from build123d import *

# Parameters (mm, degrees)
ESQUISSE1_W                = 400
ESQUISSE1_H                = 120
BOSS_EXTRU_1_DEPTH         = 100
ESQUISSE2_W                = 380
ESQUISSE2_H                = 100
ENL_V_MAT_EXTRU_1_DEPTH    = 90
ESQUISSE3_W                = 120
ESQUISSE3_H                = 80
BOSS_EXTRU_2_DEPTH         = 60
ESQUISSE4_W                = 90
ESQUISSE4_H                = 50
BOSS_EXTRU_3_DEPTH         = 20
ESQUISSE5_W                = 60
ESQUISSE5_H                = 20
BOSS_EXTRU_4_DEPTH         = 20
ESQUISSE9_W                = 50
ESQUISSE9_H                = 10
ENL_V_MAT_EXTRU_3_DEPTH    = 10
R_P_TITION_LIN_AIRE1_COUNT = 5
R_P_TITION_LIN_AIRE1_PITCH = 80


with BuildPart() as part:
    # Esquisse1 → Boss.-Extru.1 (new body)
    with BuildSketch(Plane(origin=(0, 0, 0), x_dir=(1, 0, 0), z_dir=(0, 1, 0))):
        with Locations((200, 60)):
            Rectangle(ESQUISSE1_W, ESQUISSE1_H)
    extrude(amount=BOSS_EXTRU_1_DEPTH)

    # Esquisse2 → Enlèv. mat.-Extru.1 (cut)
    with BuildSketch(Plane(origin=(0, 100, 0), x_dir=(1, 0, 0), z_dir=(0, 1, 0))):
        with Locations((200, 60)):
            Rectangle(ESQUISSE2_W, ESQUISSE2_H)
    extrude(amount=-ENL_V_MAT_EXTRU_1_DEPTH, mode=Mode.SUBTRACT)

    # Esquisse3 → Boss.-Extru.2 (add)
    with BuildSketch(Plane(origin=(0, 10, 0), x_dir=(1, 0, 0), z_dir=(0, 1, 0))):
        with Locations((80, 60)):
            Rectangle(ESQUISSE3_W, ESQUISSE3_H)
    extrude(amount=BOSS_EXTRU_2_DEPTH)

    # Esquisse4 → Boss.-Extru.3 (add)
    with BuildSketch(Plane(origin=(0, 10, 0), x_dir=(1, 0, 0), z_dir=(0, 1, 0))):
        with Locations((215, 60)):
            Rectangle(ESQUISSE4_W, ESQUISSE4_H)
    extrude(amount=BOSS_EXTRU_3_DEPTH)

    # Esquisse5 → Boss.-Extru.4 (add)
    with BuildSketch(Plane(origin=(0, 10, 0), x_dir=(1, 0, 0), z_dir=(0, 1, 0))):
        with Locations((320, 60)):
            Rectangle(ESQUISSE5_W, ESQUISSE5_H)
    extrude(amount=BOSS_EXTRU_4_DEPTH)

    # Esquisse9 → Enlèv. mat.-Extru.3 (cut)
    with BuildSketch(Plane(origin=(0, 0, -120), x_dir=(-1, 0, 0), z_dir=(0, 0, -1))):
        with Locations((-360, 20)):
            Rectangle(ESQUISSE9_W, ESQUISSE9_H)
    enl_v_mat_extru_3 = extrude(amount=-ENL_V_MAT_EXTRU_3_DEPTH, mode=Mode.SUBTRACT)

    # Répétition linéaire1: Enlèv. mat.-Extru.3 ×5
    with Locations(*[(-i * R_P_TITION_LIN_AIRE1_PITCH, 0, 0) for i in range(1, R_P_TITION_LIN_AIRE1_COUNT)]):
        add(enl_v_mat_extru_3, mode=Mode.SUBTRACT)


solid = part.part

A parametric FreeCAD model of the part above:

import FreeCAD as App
import Part
import Sketcher

V = App.Vector


def add_polygon(sketch, points):
    """Adds a closed chain of lines whose ends are joined by coincident constraints."""
    first, n = sketch.GeometryCount, len(points)
    for a, b in zip(points, points[1:] + points[:1]):
        sketch.addGeometry(Part.LineSegment(App.Vector(*a, 0), App.Vector(*b, 0)), False)
    for i in range(n):
        sketch.addConstraint(Sketcher.Constraint("Coincident", first + i, 2, first + (i + 1) % n, 1))

doc = App.newDocument("Part")
params = doc.addObject("Spreadsheet::Sheet", "Params")
for row, (alias, value) in enumerate([
    ("sketch1_width", "400 mm"),
    ("sketch1_height", "120 mm"),
    ("pad1_length", "100 mm"),
    ("sketch2_width", "380 mm"),
    ("sketch2_height", "100 mm"),
    ("pocket1_length", "90 mm"),
    ("sketch3_width", "120 mm"),
    ("sketch3_height", "80 mm"),
    ("pad2_length", "60 mm"),
    ("sketch4_width", "90 mm"),
    ("sketch4_height", "50 mm"),
    ("pad3_length", "20 mm"),
    ("sketch5_width", "60 mm"),
    ("sketch5_height", "20 mm"),
    ("pad4_length", "20 mm"),
    ("sketch6_width", "50 mm"),
    ("sketch6_height", "10 mm"),
    ("pocket2_length", "10 mm"),
    ("linearpattern_pitch", "80 mm"),
], start=1):
    params.set(f"A{row}", alias)
    params.set(f"B{row}", "=" + value)
    params.setAlias(f"B{row}", alias)

body = doc.addObject("PartDesign::Body", "Body")

sketch1 = body.newObject("Sketcher::SketchObject", "Sketch")
sketch1.AttachmentSupport = (doc.getObject("XZ_Plane"), [""])
sketch1.MapMode = "FlatFace"
add_polygon(sketch1, [(0, -120), (0, 0), (400, 0), (400, -120)])
sketch1.addConstraint([
    Sketcher.Constraint("Vertical", 0),
    Sketcher.Constraint("Horizontal", 1),
    Sketcher.Constraint("Vertical", 2),
    Sketcher.Constraint("Horizontal", 3),
    Sketcher.Constraint("Coincident", 0, 2, -1, 1),
    Sketcher.Constraint("DistanceX", 1, 1, 1, 2, 400.0),
    Sketcher.Constraint("DistanceY", 0, 1, 0, 2, 120.0),
])
sketch1.setExpression("Constraints[9]", "Params.sketch1_width")
sketch1.setExpression("Constraints[10]", "Params.sketch1_height")
pad1 = body.newObject("PartDesign::Pad", "Pad")
pad1.Profile = sketch1
pad1.setExpression("Length", "Params.pad1_length")
pad1.Reversed = True

sketch2 = body.newObject("Sketcher::SketchObject", "Sketch001")
sketch2.AttachmentSupport = (doc.getObject("XZ_Plane"), [""])
sketch2.MapMode = "FlatFace"
sketch2.AttachmentOffset = App.Placement(V(0, 0, -100), App.Rotation())
add_polygon(sketch2, [(10, -110), (10, -10), (390, -10), (390, -110)])
sketch2.addConstraint([
    Sketcher.Constraint("Vertical", 0),
    Sketcher.Constraint("Horizontal", 1),
    Sketcher.Constraint("Vertical", 2),
    Sketcher.Constraint("Horizontal", 3),
    Sketcher.Constraint("DistanceX", 1, 1, 1, 2, 380.0),
    Sketcher.Constraint("DistanceY", 0, 1, 0, 2, 100.0),
    Sketcher.Constraint("DistanceX", -1, 1, 0, 2, 10.0),
    Sketcher.Constraint("DistanceY", 0, 2, -1, 1, 10.0),
])
sketch2.setExpression("Constraints[8]", "Params.sketch2_width")
sketch2.setExpression("Constraints[9]", "Params.sketch2_height")
pocket1 = body.newObject("PartDesign::Pocket", "Pocket")
pocket1.Profile = sketch2
pocket1.setExpression("Length", "Params.pocket1_length")
pocket1.Reversed = True

sketch3 = body.newObject("Sketcher::SketchObject", "Sketch002")
sketch3.AttachmentSupport = (doc.getObject("XZ_Plane"), [""])
sketch3.MapMode = "FlatFace"
sketch3.AttachmentOffset = App.Placement(V(0, 0, -10), App.Rotation())
add_polygon(sketch3, [(20, -100), (20, -20), (140, -20), (140, -100)])
sketch3.addConstraint([
    Sketcher.Constraint("Vertical", 0),
    Sketcher.Constraint("Horizontal", 1),
    Sketcher.Constraint("Vertical", 2),
    Sketcher.Constraint("Horizontal", 3),
    Sketcher.Constraint("DistanceX", 1, 1, 1, 2, 120.0),
    Sketcher.Constraint("DistanceY", 0, 1, 0, 2, 80.0),
    Sketcher.Constraint("DistanceX", -1, 1, 0, 2, 20.0),
    Sketcher.Constraint("DistanceY", 0, 2, -1, 1, 20.0),
])
sketch3.setExpression("Constraints[8]", "Params.sketch3_width")
sketch3.setExpression("Constraints[9]", "Params.sketch3_height")
pad2 = body.newObject("PartDesign::Pad", "Pad001")
pad2.Profile = sketch3
pad2.setExpression("Length", "Params.pad2_length")
pad2.Reversed = True

sketch4 = body.newObject("Sketcher::SketchObject", "Sketch003")
sketch4.AttachmentSupport = (doc.getObject("XZ_Plane"), [""])
sketch4.MapMode = "FlatFace"
sketch4.AttachmentOffset = App.Placement(V(0, 0, -10), App.Rotation())
add_polygon(sketch4, [(170, -85), (170, -35), (260, -35), (260, -85)])
sketch4.addConstraint([
    Sketcher.Constraint("Vertical", 0),
    Sketcher.Constraint("Horizontal", 1),
    Sketcher.Constraint("Vertical", 2),
    Sketcher.Constraint("Horizontal", 3),
    Sketcher.Constraint("DistanceX", 1, 1, 1, 2, 90.0),
    Sketcher.Constraint("DistanceY", 0, 1, 0, 2, 50.0),
    Sketcher.Constraint("DistanceX", -1, 1, 0, 2, 170.0),
    Sketcher.Constraint("DistanceY", 0, 2, -1, 1, 35.0),
])
sketch4.setExpression("Constraints[8]", "Params.sketch4_width")
sketch4.setExpression("Constraints[9]", "Params.sketch4_height")
pad3 = body.newObject("PartDesign::Pad", "Pad002")
pad3.Profile = sketch4
pad3.setExpression("Length", "Params.pad3_length")
pad3.Reversed = True

sketch5 = body.newObject("Sketcher::SketchObject", "Sketch004")
sketch5.AttachmentSupport = (doc.getObject("XZ_Plane"), [""])
sketch5.MapMode = "FlatFace"
sketch5.AttachmentOffset = App.Placement(V(0, 0, -10), App.Rotation())
add_polygon(sketch5, [(290, -70), (290, -50), (350, -50), (350, -70)])
sketch5.addConstraint([
    Sketcher.Constraint("Vertical", 0),
    Sketcher.Constraint("Horizontal", 1),
    Sketcher.Constraint("Vertical", 2),
    Sketcher.Constraint("Horizontal", 3),
    Sketcher.Constraint("DistanceX", 1, 1, 1, 2, 60.0),
    Sketcher.Constraint("DistanceY", 0, 1, 0, 2, 20.0),
    Sketcher.Constraint("DistanceX", -1, 1, 0, 2, 290.0),
    Sketcher.Constraint("DistanceY", 0, 2, -1, 1, 50.0),
])
sketch5.setExpression("Constraints[8]", "Params.sketch5_width")
sketch5.setExpression("Constraints[9]", "Params.sketch5_height")
pad4 = body.newObject("PartDesign::Pad", "Pad003")
pad4.Profile = sketch5
pad4.setExpression("Length", "Params.pad4_length")
pad4.Reversed = True

sketch6 = body.newObject("Sketcher::SketchObject", "Sketch005")
sketch6.AttachmentSupport = (doc.getObject("XY_Plane"), [""])
sketch6.MapMode = "FlatFace"
sketch6.AttachmentOffset = App.Placement(V(0, 0, -120), App.Rotation())
add_polygon(sketch6, [(385, 25), (385, 15), (335, 15), (335, 25)])
sketch6.addConstraint([
    Sketcher.Constraint("Vertical", 0),
    Sketcher.Constraint("Horizontal", 1),
    Sketcher.Constraint("Vertical", 2),
    Sketcher.Constraint("Horizontal", 3),
    Sketcher.Constraint("DistanceX", 1, 2, 1, 1, 50.0),
    Sketcher.Constraint("DistanceY", 0, 2, 0, 1, 10.0),
    Sketcher.Constraint("DistanceX", -1, 1, 0, 2, 385.0),
    Sketcher.Constraint("DistanceY", -1, 1, 0, 2, 15.0),
])
sketch6.setExpression("Constraints[8]", "Params.sketch6_width")
sketch6.setExpression("Constraints[9]", "Params.sketch6_height")
pocket2 = body.newObject("PartDesign::Pocket", "Pocket001")
pocket2.Profile = sketch6
pocket2.setExpression("Length", "Params.pocket2_length")
pocket2.Reversed = True
doc.recompute()

linearpattern = body.newObject("PartDesign::LinearPattern", "LinearPattern")
linearpattern.Originals = [pocket2]
linearpattern.Direction = (doc.getObject("X_Axis"), [""])
linearpattern.Mode = "offset"
linearpattern.setExpression("Offset", "Params.linearpattern_pitch")
linearpattern.Occurrences = 5
linearpattern.Reversed = True
body.Tip = linearpattern

doc.recompute()
